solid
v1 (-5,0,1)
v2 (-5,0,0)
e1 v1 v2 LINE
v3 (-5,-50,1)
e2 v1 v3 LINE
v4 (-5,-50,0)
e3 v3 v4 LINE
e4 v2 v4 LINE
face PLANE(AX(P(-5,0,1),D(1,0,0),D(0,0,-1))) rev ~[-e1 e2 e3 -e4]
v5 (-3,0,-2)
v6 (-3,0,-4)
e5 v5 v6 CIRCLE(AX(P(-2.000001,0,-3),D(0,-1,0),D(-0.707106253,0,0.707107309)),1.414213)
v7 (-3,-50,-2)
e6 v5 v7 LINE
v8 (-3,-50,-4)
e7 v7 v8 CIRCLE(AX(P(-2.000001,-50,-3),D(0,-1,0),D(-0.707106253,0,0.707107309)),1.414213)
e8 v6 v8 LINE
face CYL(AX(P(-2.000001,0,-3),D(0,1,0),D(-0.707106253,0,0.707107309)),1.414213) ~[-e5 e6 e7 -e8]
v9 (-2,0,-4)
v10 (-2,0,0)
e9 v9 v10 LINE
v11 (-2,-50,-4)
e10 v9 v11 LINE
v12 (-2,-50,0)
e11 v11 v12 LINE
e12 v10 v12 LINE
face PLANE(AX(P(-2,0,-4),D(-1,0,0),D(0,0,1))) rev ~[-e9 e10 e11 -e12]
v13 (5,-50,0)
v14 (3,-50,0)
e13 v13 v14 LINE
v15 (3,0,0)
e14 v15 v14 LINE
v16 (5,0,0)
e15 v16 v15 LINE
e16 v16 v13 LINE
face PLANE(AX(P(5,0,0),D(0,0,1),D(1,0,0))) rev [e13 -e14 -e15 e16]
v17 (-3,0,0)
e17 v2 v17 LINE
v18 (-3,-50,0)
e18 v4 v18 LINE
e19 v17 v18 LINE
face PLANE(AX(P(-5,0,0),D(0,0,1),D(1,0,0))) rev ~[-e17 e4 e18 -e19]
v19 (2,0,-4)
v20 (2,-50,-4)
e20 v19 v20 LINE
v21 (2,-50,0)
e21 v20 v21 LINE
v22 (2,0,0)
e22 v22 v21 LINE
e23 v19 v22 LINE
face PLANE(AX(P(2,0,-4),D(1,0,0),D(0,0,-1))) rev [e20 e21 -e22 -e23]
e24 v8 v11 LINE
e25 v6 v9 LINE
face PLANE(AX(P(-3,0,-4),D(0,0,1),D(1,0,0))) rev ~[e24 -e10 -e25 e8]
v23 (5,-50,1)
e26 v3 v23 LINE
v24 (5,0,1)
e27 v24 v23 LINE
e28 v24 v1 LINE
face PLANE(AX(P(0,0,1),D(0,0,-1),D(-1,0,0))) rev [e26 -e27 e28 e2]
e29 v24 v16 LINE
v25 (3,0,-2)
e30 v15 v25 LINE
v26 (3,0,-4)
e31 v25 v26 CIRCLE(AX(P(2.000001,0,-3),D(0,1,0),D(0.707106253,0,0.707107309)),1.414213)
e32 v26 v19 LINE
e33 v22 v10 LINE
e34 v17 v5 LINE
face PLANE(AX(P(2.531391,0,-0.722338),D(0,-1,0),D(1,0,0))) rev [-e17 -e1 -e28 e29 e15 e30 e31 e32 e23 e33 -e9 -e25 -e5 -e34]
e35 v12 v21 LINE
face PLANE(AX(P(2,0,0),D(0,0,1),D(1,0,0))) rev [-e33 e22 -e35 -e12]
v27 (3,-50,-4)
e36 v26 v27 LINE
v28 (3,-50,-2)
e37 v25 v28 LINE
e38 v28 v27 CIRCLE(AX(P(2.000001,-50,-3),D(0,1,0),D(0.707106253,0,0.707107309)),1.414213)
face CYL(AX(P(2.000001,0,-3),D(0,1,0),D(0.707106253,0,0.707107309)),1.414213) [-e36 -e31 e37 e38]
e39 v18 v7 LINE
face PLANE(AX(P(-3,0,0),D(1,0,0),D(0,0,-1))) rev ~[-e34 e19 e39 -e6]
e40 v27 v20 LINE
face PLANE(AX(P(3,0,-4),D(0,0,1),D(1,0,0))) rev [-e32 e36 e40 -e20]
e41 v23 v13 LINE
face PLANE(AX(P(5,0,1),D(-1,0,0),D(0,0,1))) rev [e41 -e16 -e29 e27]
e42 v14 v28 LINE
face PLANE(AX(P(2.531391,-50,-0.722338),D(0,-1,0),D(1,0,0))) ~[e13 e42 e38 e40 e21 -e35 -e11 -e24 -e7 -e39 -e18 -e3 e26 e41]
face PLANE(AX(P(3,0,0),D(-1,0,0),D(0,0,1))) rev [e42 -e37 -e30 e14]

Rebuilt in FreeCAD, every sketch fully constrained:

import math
import FreeCAD as App
import Part
import Sketcher
from FreeCAD import Vector

doc = App.newDocument("Part")
body = doc.addObject("PartDesign::Body", "Body")

sketch1 = body.newObject("Sketcher::SketchObject", "Sketch")
sketch1.AttachmentSupport = (doc.getObject("XZ_Plane"), [""])
sketch1.MapMode = "FlatFace"
sketch1.addGeometry([
    Part.LineSegment(Vector(0, 0, 0), Vector(0, 1, 0)),
    Part.LineSegment(Vector(0, 1, 0), Vector(-5, 1, 0)),
    Part.LineSegment(Vector(-5, 1, 0), Vector(-5, 0, 0)),
    Part.LineSegment(Vector(-5, 0, 0), Vector(-3, 0, 0)),
    Part.LineSegment(Vector(-3, 0, 0), Vector(-3, -2, 0)),
    Part.ArcOfCircle(Part.Circle(Vector(-2, -3, 0), Vector(0, 0, 1), 1.4), math.radians(135), math.radians(225)),
    Part.LineSegment(Vector(-3, -4, 0), Vector(-2, -4, 0)),
    Part.LineSegment(Vector(-2, -4, 0), Vector(-2, 0, 0)),
    Part.LineSegment(Vector(-2, 0, 0), Vector(0, 0, 0)),
], False)
sketch1.addConstraint([
    Sketcher.Constraint("Coincident", 0, 2, 1, 1),
    Sketcher.Constraint("Coincident", 1, 2, 2, 1),
    Sketcher.Constraint("Coincident", 2, 2, 3, 1),
    Sketcher.Constraint("Coincident", 3, 2, 4, 1),
    Sketcher.Constraint("Coincident", 4, 2, 5, 1),
    Sketcher.Constraint("Coincident", 5, 2, 6, 1),
    Sketcher.Constraint("Coincident", 6, 2, 7, 1),
    Sketcher.Constraint("Coincident", 7, 2, 8, 1),
    Sketcher.Constraint("Coincident", 8, 2, 0, 1),
    Sketcher.Constraint("Vertical", 0),
    Sketcher.Constraint("Horizontal", 1),
    Sketcher.Constraint("Vertical", 2),
    Sketcher.Constraint("Horizontal", 3),
    Sketcher.Constraint("Vertical", 4),
    Sketcher.Constraint("Horizontal", 6),
    Sketcher.Constraint("Vertical", 7),
    Sketcher.Constraint("Horizontal", 8),
    Sketcher.Constraint("Coincident", 8, 2, -1, 1),
    Sketcher.Constraint("PointOnObject", 2, 2, -1),
    Sketcher.Constraint("Vertical", 4, 2, 5, 2),
    Sketcher.Constraint("Vertical", 5, 3, 6, 2),
    Sketcher.Constraint("Equal", 3, 8),
    Sketcher.Constraint("Equal", 6, 0),
    Sketcher.Constraint("Equal", 8, 4),
    Sketcher.Constraint("DistanceX", 1, 2, 1, 1, 5.0),
    Sketcher.Constraint("DistanceX", 3, 1, 3, 2, 2.0),
    Sketcher.Constraint("DistanceY", 7, 1, 7, 2, 4.0),
])
pad1 = body.newObject("PartDesign::Pad", "Pad")
pad1.Profile = sketch1
pad1.Length = 50
body2 = doc.addObject("PartDesign::Body", "Body001")
doc.recompute()

body2.BaseFeature = body
doc.recompute()

mirroring = doc.addObject("Part::Mirroring", "Mirroring")
mirroring.Source = body
mirroring.Base = Vector(0, 0, 0)
mirroring.Normal = Vector(1, 0, 0)
body3 = doc.addObject("PartDesign::Body", "Body002")
body3.BaseFeature = mirroring
boolean = body2.newObject("PartDesign::Boolean", "Boolean")
boolean.Type = "Fuse"
boolean.addObjects([body3])
doc.recompute()
mirroring.Visibility = False

doc.recompute()
